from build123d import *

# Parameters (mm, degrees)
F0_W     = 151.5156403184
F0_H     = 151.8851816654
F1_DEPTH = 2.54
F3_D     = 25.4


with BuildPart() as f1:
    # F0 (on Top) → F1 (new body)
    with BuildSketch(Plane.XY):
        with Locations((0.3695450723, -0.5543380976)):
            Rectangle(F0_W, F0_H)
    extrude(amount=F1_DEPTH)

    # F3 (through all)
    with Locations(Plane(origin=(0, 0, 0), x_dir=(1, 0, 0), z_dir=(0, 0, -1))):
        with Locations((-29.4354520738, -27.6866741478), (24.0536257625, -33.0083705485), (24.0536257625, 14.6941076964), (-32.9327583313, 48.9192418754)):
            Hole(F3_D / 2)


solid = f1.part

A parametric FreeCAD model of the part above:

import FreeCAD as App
import Part
import Sketcher
Q = App.Units.Quantity


def add_polygon(sketch, points):
    """Adds a closed chain of lines whose ends are joined by coincident constraints."""
    first, n = sketch.GeometryCount, len(points)
    for a, b in zip(points, points[1:] + points[:1]):
        sketch.addGeometry(Part.LineSegment(App.Vector(*a, 0), App.Vector(*b, 0)), False)
    for i in range(n):
        sketch.addConstraint(Sketcher.Constraint("Coincident", first + i, 2, first + (i + 1) % n, 1))

doc = App.newDocument("Part")
body = doc.addObject("PartDesign::Body", "Body")

# Sketch on XY plane
sketch1 = body.newObject("Sketcher::SketchObject", "Sketch")
sketch1.AttachmentSupport = (doc.getObject("XY_Plane"), [""])
sketch1.MapMode = "FlatFace"
add_polygon(sketch1, [(-75, 75), (-75, -76), (76, -76), (76, 75)])  # lines 0-3
sketch1.addConstraint([
    Sketcher.Constraint("Vertical", 0),
    Sketcher.Constraint("Horizontal", 1),
    Sketcher.Constraint("Vertical", 2),
    Sketcher.Constraint("Horizontal", 3),
    Sketcher.Constraint("DistanceX", 1, 1, 1, 2, 151.51564),
    Sketcher.Constraint("DistanceY", 0, 2, 0, 1, 151.885182),
    Sketcher.Constraint("DistanceY", 0, 2, -1, 1, 76.496929),
    Sketcher.Constraint("DistanceX", 0, 2, -1, 1, 75.388275),
])
pad1 = body.newObject("PartDesign::Pad", "Pad")
pad1.Profile = sketch1
pad1.Length = Q("0.1 in")

# Sketch on XY plane
sketch2 = body.newObject("Sketcher::SketchObject", "Sketch001")
sketch2.AttachmentSupport = (doc.getObject("XY_Plane"), [""])
sketch2.MapMode = "FlatFace"
sketch2.addGeometry([
    Part.Circle(App.Vector(-29, 28, 0), App.Vector(0, 0, 1), 13),
    Part.Circle(App.Vector(24, 33, 0), App.Vector(0, 0, 1), 13),
    Part.Circle(App.Vector(24, -15, 0), App.Vector(0, 0, 1), 13),
    Part.Circle(App.Vector(-33, -49, 0), App.Vector(0, 0, 1), 13),
], False)
sketch2.addConstraint([
    Sketcher.Constraint("Equal", 0, 1),
    Sketcher.Constraint("Equal", 1, 2),
    Sketcher.Constraint("Equal", 2, 3),
    Sketcher.Constraint("Vertical", 1, 3, 2, 3),
    Sketcher.Constraint("Diameter", 0, Q("1 in")),
    Sketcher.Constraint("DistanceY", -1, 1, 1, 3, 33.008371),
    Sketcher.Constraint("DistanceX", 3, 3, -1, 1, 32.932758),
    Sketcher.Constraint("DistanceY", 3, 3, -1, 1, 48.919242),
    Sketcher.Constraint("DistanceY", 2, 3, 1, 3, 47.702478),
    Sketcher.Constraint("DistanceY", 2, 3, 0, 3, 42.380782),
    Sketcher.Constraint("DistanceX", 0, 3, -1, 1, 29.435452),
    Sketcher.Constraint("DistanceX", -1, 1, 1, 3, 24.053626),
])
doc.recompute()
hole = body.newObject("PartDesign::Hole", "Hole")
hole.Profile = sketch2
hole.ThreadType = "None"
hole.Diameter = Q("1 in")
hole.DepthType = "ThroughAll"
hole.Reversed = True

doc.recompute()
